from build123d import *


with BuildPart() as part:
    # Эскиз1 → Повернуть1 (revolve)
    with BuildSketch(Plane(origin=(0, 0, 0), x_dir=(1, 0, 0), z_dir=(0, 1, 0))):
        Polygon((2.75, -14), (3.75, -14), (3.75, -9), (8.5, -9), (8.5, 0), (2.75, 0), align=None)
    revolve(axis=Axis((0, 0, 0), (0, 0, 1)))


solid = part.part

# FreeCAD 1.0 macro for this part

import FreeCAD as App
import Part
import Sketcher
from FreeCAD import Vector

doc = App.newDocument("Part")
body = doc.addObject("PartDesign::Body", "Body")

sketch1 = doc.addObject("Sketcher::SketchObject", "Sketch")
body.addObject(sketch1)
sketch1.AttachmentSupport = (doc.XZ_Plane, [""])
sketch1.MapMode = "FlatFace"
sketch1.addGeometry([
    Part.LineSegment(Vector(2.75, 14, 0), Vector(3.75, 14, 0)),
    Part.LineSegment(Vector(3.75, 14, 0), Vector(3.75, 9, 0)),
    Part.LineSegment(Vector(3.75, 9, 0), Vector(8.5, 9, 0)),
    Part.LineSegment(Vector(8.5, 9, 0), Vector(8.5, 0, 0)),
    Part.LineSegment(Vector(8.5, 0, 0), Vector(2.75, 0, 0)),
    Part.LineSegment(Vector(2.75, 0, 0), Vector(2.75, 14, 0)),
], False)
sketch1.addConstraint([
    Sketcher.Constraint("Coincident", 0, 2, 1, 1),
    Sketcher.Constraint("Coincident", 1, 2, 2, 1),
    Sketcher.Constraint("Coincident", 2, 2, 3, 1),
    Sketcher.Constraint("Coincident", 3, 2, 4, 1),
    Sketcher.Constraint("Coincident", 4, 2, 5, 1),
    Sketcher.Constraint("Coincident", 5, 2, 0, 1),
    Sketcher.Constraint("Horizontal", 0),
    Sketcher.Constraint("Vertical", 1),
    Sketcher.Constraint("Horizontal", 2),
    Sketcher.Constraint("Vertical", 3),
    Sketcher.Constraint("Horizontal", 4),
    Sketcher.Constraint("Vertical", 5),
    Sketcher.Constraint("PointOnObject", 3, 2, -1),
    Sketcher.Constraint("DistanceX", 0, 1, 0, 2, 1.0),
    Sketcher.Constraint("DistanceY", 1, 2, 1, 1, 5.0),
    Sketcher.Constraint("DistanceY", 3, 2, 3, 1, 9.0),
    Sketcher.Constraint("DistanceX", 2, 1, 2, 2, 4.75),
    Sketcher.Constraint("DistanceX", -1, 1, 2, 2, 8.5),
])
revolution = doc.addObject("PartDesign::Revolution", "Revolution")
body.addObject(revolution)
revolution.Profile = sketch1
revolution.ReferenceAxis = (sketch1, ["V_Axis"])
revolution.Angle = 360

doc.recompute()
